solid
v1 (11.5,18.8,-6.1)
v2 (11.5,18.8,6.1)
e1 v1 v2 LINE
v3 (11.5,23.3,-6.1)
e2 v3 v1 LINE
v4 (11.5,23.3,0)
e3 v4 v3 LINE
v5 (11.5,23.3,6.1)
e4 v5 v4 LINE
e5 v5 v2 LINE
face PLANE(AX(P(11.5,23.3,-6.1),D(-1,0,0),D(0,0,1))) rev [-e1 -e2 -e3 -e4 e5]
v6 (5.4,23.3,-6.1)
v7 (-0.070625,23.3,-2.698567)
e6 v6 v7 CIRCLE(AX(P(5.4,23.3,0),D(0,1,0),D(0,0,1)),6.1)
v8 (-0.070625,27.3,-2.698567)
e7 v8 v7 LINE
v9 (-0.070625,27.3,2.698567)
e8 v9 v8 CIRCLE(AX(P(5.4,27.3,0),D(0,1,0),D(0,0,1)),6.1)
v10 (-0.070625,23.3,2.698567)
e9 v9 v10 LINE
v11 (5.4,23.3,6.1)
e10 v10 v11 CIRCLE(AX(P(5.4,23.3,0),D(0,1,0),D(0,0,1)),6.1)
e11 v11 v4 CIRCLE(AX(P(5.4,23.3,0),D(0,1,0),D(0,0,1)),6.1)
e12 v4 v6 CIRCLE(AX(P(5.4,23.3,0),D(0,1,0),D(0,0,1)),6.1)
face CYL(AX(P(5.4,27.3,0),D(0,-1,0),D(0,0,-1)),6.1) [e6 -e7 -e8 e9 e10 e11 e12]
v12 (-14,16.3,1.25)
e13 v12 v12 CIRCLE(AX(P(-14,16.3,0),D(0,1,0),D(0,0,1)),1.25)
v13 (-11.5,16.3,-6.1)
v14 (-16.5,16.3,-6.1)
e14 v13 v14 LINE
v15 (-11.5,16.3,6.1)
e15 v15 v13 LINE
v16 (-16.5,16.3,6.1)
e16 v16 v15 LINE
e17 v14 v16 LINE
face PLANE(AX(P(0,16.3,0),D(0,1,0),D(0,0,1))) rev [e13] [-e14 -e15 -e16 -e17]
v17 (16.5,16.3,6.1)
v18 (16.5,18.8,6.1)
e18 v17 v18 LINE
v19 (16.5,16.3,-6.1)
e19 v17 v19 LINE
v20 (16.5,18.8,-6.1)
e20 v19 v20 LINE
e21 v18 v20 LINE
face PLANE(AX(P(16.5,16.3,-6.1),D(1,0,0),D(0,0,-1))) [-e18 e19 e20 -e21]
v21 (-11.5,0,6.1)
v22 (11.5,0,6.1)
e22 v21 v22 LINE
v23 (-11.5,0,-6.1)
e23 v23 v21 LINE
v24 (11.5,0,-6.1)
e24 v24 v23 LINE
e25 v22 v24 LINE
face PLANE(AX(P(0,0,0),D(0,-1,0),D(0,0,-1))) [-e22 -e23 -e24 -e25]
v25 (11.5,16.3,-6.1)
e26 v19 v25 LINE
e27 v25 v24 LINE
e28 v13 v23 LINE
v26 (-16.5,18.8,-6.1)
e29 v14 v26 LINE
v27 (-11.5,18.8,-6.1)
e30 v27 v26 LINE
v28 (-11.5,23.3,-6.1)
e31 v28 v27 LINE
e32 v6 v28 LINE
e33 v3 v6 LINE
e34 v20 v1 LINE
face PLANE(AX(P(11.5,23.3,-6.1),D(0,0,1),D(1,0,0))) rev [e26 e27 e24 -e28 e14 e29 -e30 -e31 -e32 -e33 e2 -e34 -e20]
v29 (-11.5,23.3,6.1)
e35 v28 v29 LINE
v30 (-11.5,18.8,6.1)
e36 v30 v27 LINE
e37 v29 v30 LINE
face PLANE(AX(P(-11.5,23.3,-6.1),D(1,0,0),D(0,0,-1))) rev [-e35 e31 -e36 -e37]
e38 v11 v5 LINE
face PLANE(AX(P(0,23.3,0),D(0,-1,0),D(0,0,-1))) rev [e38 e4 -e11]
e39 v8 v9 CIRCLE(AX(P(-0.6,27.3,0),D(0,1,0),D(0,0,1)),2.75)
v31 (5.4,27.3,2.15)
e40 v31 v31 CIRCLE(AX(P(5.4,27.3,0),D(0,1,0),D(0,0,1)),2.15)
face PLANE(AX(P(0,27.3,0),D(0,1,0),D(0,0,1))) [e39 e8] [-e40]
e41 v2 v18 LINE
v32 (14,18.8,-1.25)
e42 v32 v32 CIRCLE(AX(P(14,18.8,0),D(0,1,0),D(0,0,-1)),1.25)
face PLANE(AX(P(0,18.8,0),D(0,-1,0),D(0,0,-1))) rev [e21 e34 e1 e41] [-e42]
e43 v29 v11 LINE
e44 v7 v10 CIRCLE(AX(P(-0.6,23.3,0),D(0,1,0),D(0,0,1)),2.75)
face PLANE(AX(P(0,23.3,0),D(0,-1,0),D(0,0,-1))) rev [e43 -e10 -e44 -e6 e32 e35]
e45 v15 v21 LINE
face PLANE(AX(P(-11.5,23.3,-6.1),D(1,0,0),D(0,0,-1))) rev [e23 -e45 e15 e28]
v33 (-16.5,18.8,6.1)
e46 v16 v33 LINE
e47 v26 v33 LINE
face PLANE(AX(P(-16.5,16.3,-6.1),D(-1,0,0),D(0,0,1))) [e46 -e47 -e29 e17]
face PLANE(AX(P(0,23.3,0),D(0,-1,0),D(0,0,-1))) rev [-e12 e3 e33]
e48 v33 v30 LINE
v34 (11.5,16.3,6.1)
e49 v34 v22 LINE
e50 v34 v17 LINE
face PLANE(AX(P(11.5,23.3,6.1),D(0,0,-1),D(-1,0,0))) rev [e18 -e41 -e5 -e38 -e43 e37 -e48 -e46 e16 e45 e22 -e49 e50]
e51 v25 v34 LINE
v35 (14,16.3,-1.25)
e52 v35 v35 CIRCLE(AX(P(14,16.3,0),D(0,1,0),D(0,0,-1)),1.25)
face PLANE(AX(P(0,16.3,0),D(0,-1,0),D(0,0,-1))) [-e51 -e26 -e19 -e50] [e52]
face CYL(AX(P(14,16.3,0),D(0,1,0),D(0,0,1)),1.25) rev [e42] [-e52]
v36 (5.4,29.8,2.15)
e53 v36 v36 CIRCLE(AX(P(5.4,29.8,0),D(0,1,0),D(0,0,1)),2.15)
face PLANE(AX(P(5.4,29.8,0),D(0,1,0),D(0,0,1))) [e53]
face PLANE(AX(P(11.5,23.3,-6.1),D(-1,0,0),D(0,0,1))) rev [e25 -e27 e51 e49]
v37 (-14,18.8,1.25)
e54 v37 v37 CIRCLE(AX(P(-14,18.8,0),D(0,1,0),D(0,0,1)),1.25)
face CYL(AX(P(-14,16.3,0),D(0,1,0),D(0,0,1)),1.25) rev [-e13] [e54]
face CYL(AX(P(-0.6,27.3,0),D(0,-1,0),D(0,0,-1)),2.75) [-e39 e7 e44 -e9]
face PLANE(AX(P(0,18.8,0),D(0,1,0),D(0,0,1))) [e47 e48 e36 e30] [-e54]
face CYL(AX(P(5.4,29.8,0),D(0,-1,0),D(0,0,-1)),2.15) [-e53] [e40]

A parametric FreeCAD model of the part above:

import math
import FreeCAD as App
import Part
import Sketcher

doc = App.newDocument("Part")
params = doc.addObject("Spreadsheet::Sheet", "Params")
for row, (alias, value) in enumerate([
    ("sketch1_width", "23 mm"),
    ("sketch1_height", "12.2 mm"),
    ("pad1_length", "23.3 mm"),
    ("sketch2_diameter", "2.5 mm"),
    ("sketch2_width", "5 mm"),
    ("sketch2_height", "12.2 mm"),
    ("pad2_length", "2.5 mm"),
    ("sketch3_radius", "6.1 mm"),
    ("sketch3_radius2", "2.75 mm"),
    ("pad3_length", "4 mm"),
    ("sketch4_diameter", "4.3 mm"),
    ("pad4_length", "2.5 mm"),
], start=1):
    params.set(f"A{row}", alias)
    params.set(f"B{row}", "=" + value)
    params.setAlias(f"B{row}", alias)

body = doc.addObject("PartDesign::Body", "Body")

sketch1 = doc.addObject("Sketcher::SketchObject", "Sketch")
body.addObject(sketch1)
sketch1.AttachmentSupport = (doc.XZ_Plane, [""])
sketch1.MapMode = "FlatFace"
sketch1.addGeometry([
    Part.LineSegment(App.Vector(-12, -6, 0), App.Vector(-12, 6, 0)),
    Part.LineSegment(App.Vector(-12, 6, 0), App.Vector(12, 6, 0)),
    Part.LineSegment(App.Vector(12, 6, 0), App.Vector(12, -6, 0)),
    Part.LineSegment(App.Vector(12, -6, 0), App.Vector(-12, -6, 0)),
], False)
sketch1.addConstraint([
    Sketcher.Constraint("Coincident", 0, 2, 1, 1),
    Sketcher.Constraint("Coincident", 1, 2, 2, 1),
    Sketcher.Constraint("Coincident", 2, 2, 3, 1),
    Sketcher.Constraint("Coincident", 3, 2, 0, 1),
    Sketcher.Constraint("Vertical", 0),
    Sketcher.Constraint("Horizontal", 1),
    Sketcher.Constraint("Vertical", 2),
    Sketcher.Constraint("Horizontal", 3),
    Sketcher.Constraint("Symmetric", 0, 2, 2, 2, -1, 1),
    Sketcher.Constraint("DistanceX", 1, 1, 1, 2, 23.0),
    Sketcher.Constraint("DistanceY", 0, 1, 0, 2, 12.2),
])
sketch1.setExpression("Constraints[9]", "Params.sketch1_width")
sketch1.setExpression("Constraints[10]", "Params.sketch1_height")
pad1 = doc.addObject("PartDesign::Pad", "Pad")
body.addObject(pad1)
pad1.Profile = sketch1
pad1.setExpression("Length", "Params.pad1_length")
pad1.Reversed = True

sketch2 = doc.addObject("Sketcher::SketchObject", "Sketch001")
body.addObject(sketch2)
sketch2.AttachmentSupport = (doc.XZ_Plane, [""])
sketch2.MapMode = "FlatFace"
sketch2.AttachmentOffset = App.Placement(App.Vector(0, 0, -18.8), App.Rotation())
sketch2.addGeometry([
    Part.LineSegment(App.Vector(-16.5, -6.1, 0), App.Vector(-16.5, 6.1, 0)),
    Part.LineSegment(App.Vector(-16.5, 6.1, 0), App.Vector(-11.5, 6.1, 0)),
    Part.LineSegment(App.Vector(-11.5, 6.1, 0), App.Vector(-11.5, -6.1, 0)),
    Part.LineSegment(App.Vector(-11.5, -6.1, 0), App.Vector(-16.5, -6.1, 0)),
    Part.Circle(App.Vector(-14, 0, 0), App.Vector(0, 0, 1), 1.2),
    Part.LineSegment(App.Vector(11.5, -6.1, 0), App.Vector(11.5, 6.1, 0)),
    Part.LineSegment(App.Vector(11.5, 6.1, 0), App.Vector(16.5, 6.1, 0)),
    Part.LineSegment(App.Vector(16.5, 6.1, 0), App.Vector(16.5, -6.1, 0)),
    Part.LineSegment(App.Vector(16.5, -6.1, 0), App.Vector(11.5, -6.1, 0)),
    Part.Circle(App.Vector(14, 0, 0), App.Vector(0, 0, 1), 1.2),
], False)
sketch2.addConstraint([
    Sketcher.Constraint("Coincident", 0, 2, 1, 1),
    Sketcher.Constraint("Coincident", 1, 2, 2, 1),
    Sketcher.Constraint("Coincident", 2, 2, 3, 1),
    Sketcher.Constraint("Coincident", 3, 2, 0, 1),
    Sketcher.Constraint("Coincident", 5, 2, 6, 1),
    Sketcher.Constraint("Coincident", 6, 2, 7, 1),
    Sketcher.Constraint("Coincident", 7, 2, 8, 1),
    Sketcher.Constraint("Coincident", 8, 2, 5, 1),
    Sketcher.Constraint("Vertical", 0),
    Sketcher.Constraint("Horizontal", 1),
    Sketcher.Constraint("Vertical", 2),
    Sketcher.Constraint("Horizontal", 3),
    Sketcher.Constraint("Vertical", 5),
    Sketcher.Constraint("Horizontal", 6),
    Sketcher.Constraint("Vertical", 7),
    Sketcher.Constraint("Horizontal", 8),
    Sketcher.Constraint("Equal", 4, 9),
    Sketcher.Constraint("Symmetric", 4, 3, 9, 3, -1, 1),
    Sketcher.Constraint("Symmetric", 2, 2, 5, 2, -1, 1),
    Sketcher.Constraint("Symmetric", 0, 2, 7, 2, -1, 1),
    Sketcher.Constraint("PointOnObject", 4, 3, -1),
    Sketcher.Constraint("Horizontal", 1, 2, 5, 2),
    Sketcher.Constraint("Diameter", 4, 2.5),
    Sketcher.Constraint("DistanceX", 1, 1, 1, 2, 5.0),
    Sketcher.Constraint("DistanceY", 0, 1, 0, 2, 12.2),
    Sketcher.Constraint("DistanceX", 4, 3, -1, 1, 14.0),
    Sketcher.Constraint("DistanceX", 1, 2, 5, 2, 23.0),
])
sketch2.setExpression("Constraints[22]", "Params.sketch2_diameter")
sketch2.setExpression("Constraints[23]", "Params.sketch2_width")
sketch2.setExpression("Constraints[24]", "Params.sketch2_height")
pad2 = doc.addObject("PartDesign::Pad", "Pad001")
body.addObject(pad2)
pad2.Profile = sketch2
pad2.setExpression("Length", "Params.pad2_length")

sketch3 = doc.addObject("Sketcher::SketchObject", "Sketch002")
body.addObject(sketch3)
sketch3.AttachmentSupport = (doc.XZ_Plane, [""])
sketch3.MapMode = "FlatFace"
sketch3.AttachmentOffset = App.Placement(App.Vector(0, 0, -23.3), App.Rotation())
sketch3.addGeometry([
    Part.ArcOfCircle(Part.Circle(App.Vector(5.4, 0, 0), App.Vector(0, 0, 1), 6.1), math.radians(-154), math.radians(154)),
    Part.ArcOfCircle(Part.Circle(App.Vector(-0.6, 0, 0), App.Vector(0, 0, 1), 2.8), math.radians(79), math.radians(281)),
], False)
sketch3.addConstraint([
    Sketcher.Constraint("Coincident", 0, 1, 1, 2),
    Sketcher.Constraint("Coincident", 1, 1, 0, 2),
    Sketcher.Constraint("Symmetric", 0, 1, 1, 1, -1),
    Sketcher.Constraint("Radius", 0, 6.1),
    Sketcher.Constraint("Radius", 1, 2.75),
    Sketcher.Constraint("DistanceX", 1, 3, 0, 3, 6.0),
    Sketcher.Constraint("DistanceX", -1, 1, 0, 3, 5.4),
])
sketch3.setExpression("Constraints[3]", "Params.sketch3_radius")
sketch3.setExpression("Constraints[4]", "Params.sketch3_radius2")
pad3 = doc.addObject("PartDesign::Pad", "Pad002")
body.addObject(pad3)
pad3.Profile = sketch3
pad3.setExpression("Length", "Params.pad3_length")
pad3.Reversed = True

sketch4 = doc.addObject("Sketcher::SketchObject", "Sketch003")
body.addObject(sketch4)
sketch4.AttachmentSupport = (doc.XZ_Plane, [""])
sketch4.MapMode = "FlatFace"
sketch4.AttachmentOffset = App.Placement(App.Vector(0, 0, -27.3), App.Rotation())
sketch4.addGeometry(Part.Circle(App.Vector(5.4, 0, 0), App.Vector(0, 0, 1), 2.1), False)
sketch4.addConstraint([
    Sketcher.Constraint("PointOnObject", 0, 3, -1),
    Sketcher.Constraint("Diameter", 0, 4.3),
    Sketcher.Constraint("DistanceX", -1, 1, 0, 3, 5.4),
])
sketch4.setExpression("Constraints[1]", "Params.sketch4_diameter")
pad4 = doc.addObject("PartDesign::Pad", "Pad003")
body.addObject(pad4)
pad4.Profile = sketch4
pad4.setExpression("Length", "Params.pad4_length")
pad4.Reversed = True

doc.recompute()
